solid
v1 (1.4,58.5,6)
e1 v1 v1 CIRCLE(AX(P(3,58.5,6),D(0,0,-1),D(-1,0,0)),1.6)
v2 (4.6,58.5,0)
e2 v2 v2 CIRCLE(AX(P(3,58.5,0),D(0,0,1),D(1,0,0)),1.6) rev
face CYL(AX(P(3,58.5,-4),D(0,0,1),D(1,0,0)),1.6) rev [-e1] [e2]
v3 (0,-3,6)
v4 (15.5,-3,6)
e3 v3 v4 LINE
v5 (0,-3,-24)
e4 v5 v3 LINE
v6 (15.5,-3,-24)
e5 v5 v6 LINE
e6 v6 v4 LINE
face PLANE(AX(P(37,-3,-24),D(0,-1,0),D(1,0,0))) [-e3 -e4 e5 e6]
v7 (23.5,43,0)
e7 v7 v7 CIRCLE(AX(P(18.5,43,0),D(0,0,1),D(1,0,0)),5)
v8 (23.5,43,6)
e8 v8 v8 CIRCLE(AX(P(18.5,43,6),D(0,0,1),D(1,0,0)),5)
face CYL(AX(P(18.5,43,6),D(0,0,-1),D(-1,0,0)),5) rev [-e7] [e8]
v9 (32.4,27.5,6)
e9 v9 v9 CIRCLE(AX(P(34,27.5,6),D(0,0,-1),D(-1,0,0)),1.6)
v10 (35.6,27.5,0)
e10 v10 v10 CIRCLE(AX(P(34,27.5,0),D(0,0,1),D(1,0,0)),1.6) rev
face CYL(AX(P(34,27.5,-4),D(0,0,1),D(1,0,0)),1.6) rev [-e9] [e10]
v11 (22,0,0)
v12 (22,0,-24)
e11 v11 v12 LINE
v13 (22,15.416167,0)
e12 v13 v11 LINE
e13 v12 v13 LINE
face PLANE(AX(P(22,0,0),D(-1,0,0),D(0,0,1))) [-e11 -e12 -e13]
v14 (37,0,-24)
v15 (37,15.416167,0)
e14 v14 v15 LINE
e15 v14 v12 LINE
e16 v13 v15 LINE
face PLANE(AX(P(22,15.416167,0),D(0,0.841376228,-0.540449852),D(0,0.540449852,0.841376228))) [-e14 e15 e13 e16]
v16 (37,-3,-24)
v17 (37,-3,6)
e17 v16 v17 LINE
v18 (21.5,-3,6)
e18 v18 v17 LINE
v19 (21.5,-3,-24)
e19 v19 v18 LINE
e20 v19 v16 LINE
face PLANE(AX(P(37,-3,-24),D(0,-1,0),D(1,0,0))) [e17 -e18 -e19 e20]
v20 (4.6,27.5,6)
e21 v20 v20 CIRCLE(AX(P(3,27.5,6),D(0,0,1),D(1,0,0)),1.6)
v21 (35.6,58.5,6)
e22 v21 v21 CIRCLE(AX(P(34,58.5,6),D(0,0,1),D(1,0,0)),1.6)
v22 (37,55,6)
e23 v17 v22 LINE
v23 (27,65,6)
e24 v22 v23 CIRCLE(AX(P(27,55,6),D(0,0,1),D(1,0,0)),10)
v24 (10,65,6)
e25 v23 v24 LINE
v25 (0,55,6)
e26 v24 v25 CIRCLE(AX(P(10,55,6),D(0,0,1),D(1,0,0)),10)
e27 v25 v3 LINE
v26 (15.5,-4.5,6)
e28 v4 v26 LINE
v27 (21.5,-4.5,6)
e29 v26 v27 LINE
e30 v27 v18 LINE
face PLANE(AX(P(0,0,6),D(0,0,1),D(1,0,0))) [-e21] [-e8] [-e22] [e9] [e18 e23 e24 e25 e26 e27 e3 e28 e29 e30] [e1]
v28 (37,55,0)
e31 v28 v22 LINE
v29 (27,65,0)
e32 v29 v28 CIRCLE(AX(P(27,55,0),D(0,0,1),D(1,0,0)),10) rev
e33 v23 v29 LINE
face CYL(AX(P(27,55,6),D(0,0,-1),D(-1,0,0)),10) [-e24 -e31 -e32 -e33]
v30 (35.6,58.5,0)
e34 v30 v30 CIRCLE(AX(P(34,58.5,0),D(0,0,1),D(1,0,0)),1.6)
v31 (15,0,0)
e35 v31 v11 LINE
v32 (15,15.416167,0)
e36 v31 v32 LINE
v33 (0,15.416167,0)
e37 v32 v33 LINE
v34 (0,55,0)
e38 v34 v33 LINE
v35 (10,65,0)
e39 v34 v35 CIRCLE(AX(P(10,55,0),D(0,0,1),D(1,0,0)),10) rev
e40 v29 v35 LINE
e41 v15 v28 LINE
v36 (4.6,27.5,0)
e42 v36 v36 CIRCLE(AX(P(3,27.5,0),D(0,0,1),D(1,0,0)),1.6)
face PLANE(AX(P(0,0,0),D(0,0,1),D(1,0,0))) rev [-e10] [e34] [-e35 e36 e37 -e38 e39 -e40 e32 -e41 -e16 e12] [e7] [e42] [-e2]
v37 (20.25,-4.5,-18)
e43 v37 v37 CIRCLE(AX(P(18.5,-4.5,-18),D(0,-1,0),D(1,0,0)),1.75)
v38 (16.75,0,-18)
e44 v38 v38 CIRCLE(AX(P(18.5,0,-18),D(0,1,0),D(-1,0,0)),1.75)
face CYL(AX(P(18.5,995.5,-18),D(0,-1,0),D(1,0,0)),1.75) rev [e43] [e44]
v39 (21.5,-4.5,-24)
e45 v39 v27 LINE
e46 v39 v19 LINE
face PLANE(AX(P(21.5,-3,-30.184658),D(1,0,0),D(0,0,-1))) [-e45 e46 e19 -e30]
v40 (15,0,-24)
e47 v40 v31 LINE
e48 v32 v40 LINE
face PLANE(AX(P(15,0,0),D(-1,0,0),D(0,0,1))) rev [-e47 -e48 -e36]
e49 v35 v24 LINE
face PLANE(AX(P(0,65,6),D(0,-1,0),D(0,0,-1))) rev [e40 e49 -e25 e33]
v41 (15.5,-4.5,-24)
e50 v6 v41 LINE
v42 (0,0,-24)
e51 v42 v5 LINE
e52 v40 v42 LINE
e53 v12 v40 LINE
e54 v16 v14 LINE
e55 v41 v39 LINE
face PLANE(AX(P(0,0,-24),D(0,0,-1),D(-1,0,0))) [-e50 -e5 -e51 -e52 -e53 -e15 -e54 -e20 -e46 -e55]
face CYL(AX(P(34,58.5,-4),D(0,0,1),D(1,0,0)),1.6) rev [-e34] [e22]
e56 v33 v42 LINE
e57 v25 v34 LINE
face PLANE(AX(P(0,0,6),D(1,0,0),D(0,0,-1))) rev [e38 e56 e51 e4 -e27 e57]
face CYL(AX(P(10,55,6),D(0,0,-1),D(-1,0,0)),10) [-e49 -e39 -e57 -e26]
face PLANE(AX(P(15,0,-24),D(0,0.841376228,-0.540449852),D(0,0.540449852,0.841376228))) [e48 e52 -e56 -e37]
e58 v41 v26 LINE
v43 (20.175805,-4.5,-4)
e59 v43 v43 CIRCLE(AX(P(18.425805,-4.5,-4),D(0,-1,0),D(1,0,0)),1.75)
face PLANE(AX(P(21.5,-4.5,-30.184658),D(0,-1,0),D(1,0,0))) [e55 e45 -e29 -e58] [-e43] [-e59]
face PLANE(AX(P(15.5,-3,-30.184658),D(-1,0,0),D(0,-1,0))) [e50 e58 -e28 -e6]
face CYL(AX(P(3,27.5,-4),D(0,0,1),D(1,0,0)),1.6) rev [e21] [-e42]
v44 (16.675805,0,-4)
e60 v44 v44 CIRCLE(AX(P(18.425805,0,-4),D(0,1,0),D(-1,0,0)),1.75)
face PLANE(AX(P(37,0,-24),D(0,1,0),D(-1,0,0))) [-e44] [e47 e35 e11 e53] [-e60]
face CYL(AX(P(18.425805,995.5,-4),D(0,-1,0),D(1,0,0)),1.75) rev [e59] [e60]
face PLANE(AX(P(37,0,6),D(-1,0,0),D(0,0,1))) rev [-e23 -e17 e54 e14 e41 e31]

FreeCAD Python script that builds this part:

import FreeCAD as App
import Part
import Sketcher
from FreeCAD import Vector
Q = App.Units.Quantity


def edges_at(feature, points):
    """Names of the edges that pass closest to the given points."""
    edges = feature.Shape.Edges
    near = lambda p: min(range(len(edges)), key=lambda i: edges[i].distToShape(Part.Vertex(*p))[0])
    return sorted({f"Edge{near(p) + 1}" for p in points})


def add_polygon(sketch, points):
    """Adds a closed chain of lines whose ends are joined by coincident constraints."""
    first, n = sketch.GeometryCount, len(points)
    for a, b in zip(points, points[1:] + points[:1]):
        sketch.addGeometry(Part.LineSegment(App.Vector(*a, 0), App.Vector(*b, 0)), False)
    for i in range(n):
        sketch.addConstraint(Sketcher.Constraint("Coincident", first + i, 2, first + (i + 1) % n, 1))

doc = App.newDocument("Part")
params = doc.addObject("Spreadsheet::Sheet", "Params")
for row, (alias, value) in enumerate([
    ("sketch1_diameter", "10 mm"),
    ("sketch1_width", "37 mm"),
    ("sketch1_height", "65 mm"),
    ("pad1_length", "6 mm"),
    ("fillet_radius", "10 mm"),
    ("sketch2_width", "37 mm"),
    ("sketch2_height", "3 mm"),
    ("pad2_length", "30 mm"),
    ("sketch3_width", "6 mm"),
    ("sketch3_height", "1.5 mm"),
    ("pad3_length", "30 mm"),
    ("sketch4_diameter", "3.2 mm"),
    ("pocket1_length", "10 mm"),
    ("sketch5_height", "24 mm"),
    ("pad4_length", "15 mm"),
    ("sketch6_diameter", "3.5 mm"),
    ("pocket2_length", "1000 mm"),
    ("sketch7_height", "24 mm"),
    ("pad5_length", "15 mm"),
], start=1):
    params.set(f"A{row}", alias)
    params.set(f"B{row}", "=" + value)
    params.setAlias(f"B{row}", alias)

body = doc.addObject("PartDesign::Body", "Body")

# Sketch on XY plane
sketch1 = body.newObject("Sketcher::SketchObject", "Sketch")
sketch1.AttachmentSupport = (doc.getObject("XY_Plane"), [""])
sketch1.MapMode = "FlatFace"
add_polygon(sketch1, [(0, 65), (0, 0), (37, 0), (37, 65)])  # lines 0-3
sketch1.addGeometry(Part.Circle(Vector(18, 43, 0), Vector(0, 0, 1), 5), False)  # 4
sketch1.addConstraint([
    Sketcher.Constraint("Vertical", 0),
    Sketcher.Constraint("Horizontal", 1),
    Sketcher.Constraint("Vertical", 2),
    Sketcher.Constraint("Horizontal", 3),
    Sketcher.Constraint("Coincident", 0, 2, -1, 1),
    Sketcher.Constraint("Diameter", 4, Q("10 mm")),
    Sketcher.Constraint("DistanceX", 1, 1, 1, 2, Q("37 mm")),
    Sketcher.Constraint("DistanceY", 0, 2, 0, 1, Q("65 mm")),
    Sketcher.Constraint("DistanceY", -1, 1, 4, 3, Q("43 mm")),
    Sketcher.Constraint("DistanceX", -1, 1, 4, 3, Q("18.5 mm")),
])
sketch1.setExpression("Constraints[9]", "Params.sketch1_diameter")
sketch1.setExpression("Constraints[10]", "Params.sketch1_width")
sketch1.setExpression("Constraints[11]", "Params.sketch1_height")
pad1 = body.newObject("PartDesign::Pad", "Pad")
pad1.Profile = sketch1
pad1.setExpression("Length", "Params.pad1_length")
doc.recompute()

fillet = body.newObject("PartDesign::Fillet", "Fillet")
fillet.Base = (pad1, edges_at(pad1, [(0, 65, 3), (37, 65, 3)]))
fillet.setExpression("Radius", "Params.fillet_radius")

# Sketch on XY plane
sketch2 = body.newObject("Sketcher::SketchObject", "Sketch001")
sketch2.AttachmentSupport = (doc.getObject("XY_Plane"), [""])
sketch2.MapMode = "FlatFace"
sketch2.AttachmentOffset = App.Placement(Vector(0, 0, 6), App.Rotation())
add_polygon(sketch2, [(0, 0), (0, -3), (37, -3), (37, 0)])  # lines 0-3
sketch2.addConstraint([
    Sketcher.Constraint("Vertical", 0),
    Sketcher.Constraint("Horizontal", 1),
    Sketcher.Constraint("Vertical", 2),
    Sketcher.Constraint("Horizontal", 3),
    Sketcher.Constraint("Coincident", 3, 2, -1, 1),
    Sketcher.Constraint("DistanceX", 1, 1, 1, 2, Q("37 mm")),
    Sketcher.Constraint("DistanceY", 0, 2, 0, 1, Q("3 mm")),
])
sketch2.setExpression("Constraints[9]", "Params.sketch2_width")
sketch2.setExpression("Constraints[10]", "Params.sketch2_height")
pad2 = body.newObject("PartDesign::Pad", "Pad001")
pad2.Profile = sketch2
pad2.setExpression("Length", "Params.pad2_length")
pad2.Reversed = True

# Sketch on XY plane
sketch3 = body.newObject("Sketcher::SketchObject", "Sketch002")
sketch3.AttachmentSupport = (doc.getObject("XY_Plane"), [""])
sketch3.MapMode = "FlatFace"
sketch3.AttachmentOffset = App.Placement(Vector(0, 0, 6), App.Rotation())
add_polygon(sketch3, [(15.5, -3), (15.5, -4.5), (21.5, -4.5), (21.5, -3)])  # lines 0-3
sketch3.addConstraint([
    Sketcher.Constraint("Vertical", 0),
    Sketcher.Constraint("Horizontal", 1),
    Sketcher.Constraint("Vertical", 2),
    Sketcher.Constraint("Horizontal", 3),
    Sketcher.Constraint("DistanceX", 1, 1, 1, 2, Q("6 mm")),
    Sketcher.Constraint("DistanceY", 0, 2, 0, 1, Q("1.5 mm")),
    Sketcher.Constraint("DistanceY", 2, 2, -1, 1, Q("3 mm")),
    Sketcher.Constraint("DistanceX", -1, 1, 0, 2, Q("15.5 mm")),
])
sketch3.setExpression("Constraints[8]", "Params.sketch3_width")
sketch3.setExpression("Constraints[9]", "Params.sketch3_height")
pad3 = body.newObject("PartDesign::Pad", "Pad002")
pad3.Profile = sketch3
pad3.setExpression("Length", "Params.pad3_length")
pad3.Reversed = True

# Sketch on XY plane
sketch4 = body.newObject("Sketcher::SketchObject", "Sketch003")
sketch4.AttachmentSupport = (doc.getObject("XY_Plane"), [""])
sketch4.MapMode = "FlatFace"
sketch4.AttachmentOffset = App.Placement(Vector(0, 0, 6), App.Rotation())
sketch4.addGeometry([
    Part.Circle(Vector(3, 27.5, 0), Vector(0, 0, 1), 1.6),
    Part.Circle(Vector(3, 58.5, 0), Vector(0, 0, 1), 1.6),
    Part.Circle(Vector(34, 27.5, 0), Vector(0, 0, 1), 1.6),
    Part.Circle(Vector(34, 58.5, 0), Vector(0, 0, 1), 1.6),
], False)
sketch4.addConstraint([
    Sketcher.Constraint("Equal", 0, 1),
    Sketcher.Constraint("Equal", 1, 2),
    Sketcher.Constraint("Equal", 2, 3),
    Sketcher.Constraint("Horizontal", 0, 3, 2, 3),
    Sketcher.Constraint("Horizontal", 1, 3, 3, 3),
    Sketcher.Constraint("Vertical", 0, 3, 1, 3),
    Sketcher.Constraint("Vertical", 2, 3, 3, 3),
    Sketcher.Constraint("Diameter", 0, Q("3.2 mm")),
    Sketcher.Constraint("DistanceX", -1, 1, 0, 3, Q("3 mm")),
    Sketcher.Constraint("DistanceX", -1, 1, 2, 3, Q("34 mm")),
    Sketcher.Constraint("DistanceY", 0, 3, 1, 3, Q("31 mm")),
    Sketcher.Constraint("DistanceY", -1, 1, 0, 3, Q("27.5 mm")),
])
sketch4.setExpression("Constraints[7]", "Params.sketch4_diameter")
pocket1 = body.newObject("PartDesign::Pocket", "Pocket")
pocket1.Profile = sketch4
pocket1.setExpression("Length", "Params.pocket1_length")

# Sketch on YZ plane
sketch5 = body.newObject("Sketcher::SketchObject", "Sketch004")
sketch5.AttachmentSupport = (doc.getObject("YZ_Plane"), [""])
sketch5.MapMode = "FlatFace"
add_polygon(sketch5, [(0, -24), (0, 0), (15, 0)])  # lines 0-2
sketch5.addConstraint([
    Sketcher.Constraint("Vertical", 0),
    Sketcher.Constraint("Horizontal", 1),
    Sketcher.Constraint("Coincident", 0, 2, -1, 1),
    Sketcher.Constraint("DistanceY", 0, 1, 0, 2, Q("24 mm")),
    Sketcher.Constraint("DistanceX", 1, 1, 1, 2, Q("15.416167 mm")),
])
sketch5.setExpression("Constraints[6]", "Params.sketch5_height")
pad4 = body.newObject("PartDesign::Pad", "Pad003")
pad4.Profile = sketch5
pad4.setExpression("Length", "Params.pad4_length")

# Sketch on XZ plane
sketch6 = body.newObject("Sketcher::SketchObject", "Sketch005")
sketch6.AttachmentSupport = (doc.getObject("XZ_Plane"), [""])
sketch6.MapMode = "FlatFace"
sketch6.AttachmentOffset = App.Placement(Vector(0, 0, 4.5), App.Rotation())
sketch6.addGeometry([
    Part.Circle(Vector(18.5, -18, 0), Vector(0, 0, 1), 1.8),
    Part.Circle(Vector(18.4, -4, 0), Vector(0, 0, 1), 1.8),
], False)
sketch6.addConstraint([
    Sketcher.Constraint("Equal", 0, 1),
    Sketcher.Constraint("Diameter", 0, Q("3.5 mm")),
    Sketcher.Constraint("DistanceY", 0, 3, -1, 1, Q("18 mm")),
    Sketcher.Constraint("DistanceY", 1, 3, -1, 1, Q("4 mm")),
    Sketcher.Constraint("DistanceX", -1, 1, 0, 3, Q("18.5 mm")),
    Sketcher.Constraint("DistanceX", -1, 1, 1, 3, Q("18.425805 mm")),
])
sketch6.setExpression("Constraints[1]", "Params.sketch6_diameter")
pocket2 = body.newObject("PartDesign::Pocket", "Pocket001")
pocket2.Profile = sketch6
pocket2.setExpression("Length", "Params.pocket2_length")

# Sketch on YZ plane
sketch7 = body.newObject("Sketcher::SketchObject", "Sketch006")
sketch7.AttachmentSupport = (doc.getObject("YZ_Plane"), [""])
sketch7.MapMode = "FlatFace"
sketch7.AttachmentOffset = App.Placement(Vector(0, 0, 37), App.Rotation())
add_polygon(sketch7, [(0, 0), (0, -24), (15, 0)])  # lines 0-2
sketch7.addConstraint([
    Sketcher.Constraint("Vertical", 0),
    Sketcher.Constraint("Horizontal", 2),
    Sketcher.Constraint("Coincident", 2, 2, -1, 1),
    Sketcher.Constraint("DistanceY", 0, 2, 0, 1, Q("24 mm")),
    Sketcher.Constraint("DistanceX", 2, 2, 2, 1, Q("15.416167 mm")),
])
sketch7.setExpression("Constraints[6]", "Params.sketch7_height")
pad5 = body.newObject("PartDesign::Pad", "Pad004")
pad5.Profile = sketch7
pad5.setExpression("Length", "Params.pad5_length")
pad5.Reversed = True

doc.recompute()
